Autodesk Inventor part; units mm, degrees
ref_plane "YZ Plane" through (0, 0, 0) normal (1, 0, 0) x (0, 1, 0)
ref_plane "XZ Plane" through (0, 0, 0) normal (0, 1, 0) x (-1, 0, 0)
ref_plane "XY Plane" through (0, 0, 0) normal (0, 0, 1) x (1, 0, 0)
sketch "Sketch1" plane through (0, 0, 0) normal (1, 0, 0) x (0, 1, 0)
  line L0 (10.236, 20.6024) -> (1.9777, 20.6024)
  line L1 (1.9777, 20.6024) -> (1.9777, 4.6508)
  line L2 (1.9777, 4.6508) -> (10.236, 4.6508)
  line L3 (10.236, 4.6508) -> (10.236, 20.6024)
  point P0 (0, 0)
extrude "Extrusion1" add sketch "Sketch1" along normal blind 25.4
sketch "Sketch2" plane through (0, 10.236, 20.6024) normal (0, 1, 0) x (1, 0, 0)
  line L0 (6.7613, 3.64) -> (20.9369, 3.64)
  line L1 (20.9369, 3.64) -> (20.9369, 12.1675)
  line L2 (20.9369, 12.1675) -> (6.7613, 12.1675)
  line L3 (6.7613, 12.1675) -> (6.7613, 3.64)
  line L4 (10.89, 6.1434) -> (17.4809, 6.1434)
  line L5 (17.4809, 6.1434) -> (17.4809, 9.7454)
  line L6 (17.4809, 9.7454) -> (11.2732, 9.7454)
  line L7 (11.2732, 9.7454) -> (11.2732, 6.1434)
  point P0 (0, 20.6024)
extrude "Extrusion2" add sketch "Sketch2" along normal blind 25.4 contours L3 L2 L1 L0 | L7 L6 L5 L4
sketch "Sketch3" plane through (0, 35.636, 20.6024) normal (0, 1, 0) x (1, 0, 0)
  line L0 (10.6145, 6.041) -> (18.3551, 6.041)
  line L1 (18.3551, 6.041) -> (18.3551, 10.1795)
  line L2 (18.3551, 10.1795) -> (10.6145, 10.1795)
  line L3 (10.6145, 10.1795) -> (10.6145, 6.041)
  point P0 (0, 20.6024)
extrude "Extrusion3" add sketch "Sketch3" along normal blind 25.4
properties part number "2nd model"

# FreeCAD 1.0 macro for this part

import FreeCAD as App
import Part
import Sketcher
from FreeCAD import Vector
Q = App.Units.Quantity


def add_polygon(sketch, points):
    """Adds a closed chain of lines whose ends are joined by coincident constraints."""
    first, n = sketch.GeometryCount, len(points)
    for a, b in zip(points, points[1:] + points[:1]):
        sketch.addGeometry(Part.LineSegment(App.Vector(*a, 0), App.Vector(*b, 0)), False)
    for i in range(n):
        sketch.addConstraint(Sketcher.Constraint("Coincident", first + i, 2, first + (i + 1) % n, 1))

doc = App.newDocument("Part")
body = doc.addObject("PartDesign::Body", "Body")

# Sketch on YZ plane
sketch1 = body.newObject("Sketcher::SketchObject", "Sketch")
sketch1.AttachmentSupport = (doc.getObject("YZ_Plane"), [""])
sketch1.MapMode = "FlatFace"
add_polygon(sketch1, [(10, 5), (10, 21), (2, 21), (2, 5)])  # lines 0-3
sketch1.addConstraint([
    Sketcher.Constraint("Vertical", 0),
    Sketcher.Constraint("Horizontal", 1),
    Sketcher.Constraint("Vertical", 2),
    Sketcher.Constraint("Horizontal", 3),
    Sketcher.Constraint("DistanceX", -1, 1, 0, 2, Q("0.403 in")),
    Sketcher.Constraint("DistanceX", 1, 2, 1, 1, Q("8.2583 mm")),
    Sketcher.Constraint("DistanceY", 0, 1, 0, 2, Q("15.9516 mm")),
    Sketcher.Constraint("DistanceY", -1, 1, 2, 2, Q("0.1831 in")),
])
pad1 = body.newObject("PartDesign::Pad", "Pad")
pad1.Profile = sketch1
pad1.Length = Q("1 in")

# Sketch on XZ plane
sketch2 = body.newObject("Sketcher::SketchObject", "Sketch001")
sketch2.AttachmentSupport = (doc.getObject("XZ_Plane"), [""])
sketch2.MapMode = "FlatFace"
sketch2.AttachmentOffset = App.Placement(Vector(0, 0, -0.4029921 * 25.4), App.Rotation())
add_polygon(sketch2, [(7, 8), (7, 17), (21, 17), (21, 8)])  # lines 0-3
sketch2.addConstraint([
    Sketcher.Constraint("Vertical", 0),
    Sketcher.Constraint("Horizontal", 1),
    Sketcher.Constraint("Vertical", 2),
    Sketcher.Constraint("Horizontal", 3),
    Sketcher.Constraint("DistanceX", 1, 1, 1, 2, Q("0.5581 in")),
    Sketcher.Constraint("DistanceY", 0, 1, 0, 2, Q("8.5275 mm")),
    Sketcher.Constraint("DistanceX", -1, 1, 0, 2, Q("0.2662 in")),
    Sketcher.Constraint("DistanceY", -1, 1, 0, 2, Q("0.6678 in")),
])
pad2 = body.newObject("PartDesign::Pad", "Pad001")
pad2.Profile = sketch2
pad2.Length = Q("1 in")
pad2.Reversed = True

# Sketch on XZ plane
sketch3 = body.newObject("Sketcher::SketchObject", "Sketch002")
sketch3.AttachmentSupport = (doc.getObject("XZ_Plane"), [""])
sketch3.MapMode = "FlatFace"
sketch3.AttachmentOffset = App.Placement(Vector(0, 0, -1.4029921 * 25.4), App.Rotation())
add_polygon(sketch3, [(10.6, 10.4), (10.6, 14.6), (18.4, 14.6), (18.4, 10.4)])  # lines 0-3
sketch3.addConstraint([
    Sketcher.Constraint("Vertical", 0),
    Sketcher.Constraint("Horizontal", 1),
    Sketcher.Constraint("Vertical", 2),
    Sketcher.Constraint("Horizontal", 3),
    Sketcher.Constraint("DistanceX", 1, 1, 1, 2, Q("7.7406 mm")),
    Sketcher.Constraint("DistanceY", 0, 1, 0, 2, Q("4.1385 mm")),
    Sketcher.Constraint("DistanceX", -1, 1, 0, 2, Q("0.4179 in")),
    Sketcher.Constraint("DistanceY", -1, 1, 0, 2, Q("14.5614 mm")),
])
pad3 = body.newObject("PartDesign::Pad", "Pad002")
pad3.Profile = sketch3
pad3.Length = Q("1 in")
pad3.Reversed = True

doc.recompute()
